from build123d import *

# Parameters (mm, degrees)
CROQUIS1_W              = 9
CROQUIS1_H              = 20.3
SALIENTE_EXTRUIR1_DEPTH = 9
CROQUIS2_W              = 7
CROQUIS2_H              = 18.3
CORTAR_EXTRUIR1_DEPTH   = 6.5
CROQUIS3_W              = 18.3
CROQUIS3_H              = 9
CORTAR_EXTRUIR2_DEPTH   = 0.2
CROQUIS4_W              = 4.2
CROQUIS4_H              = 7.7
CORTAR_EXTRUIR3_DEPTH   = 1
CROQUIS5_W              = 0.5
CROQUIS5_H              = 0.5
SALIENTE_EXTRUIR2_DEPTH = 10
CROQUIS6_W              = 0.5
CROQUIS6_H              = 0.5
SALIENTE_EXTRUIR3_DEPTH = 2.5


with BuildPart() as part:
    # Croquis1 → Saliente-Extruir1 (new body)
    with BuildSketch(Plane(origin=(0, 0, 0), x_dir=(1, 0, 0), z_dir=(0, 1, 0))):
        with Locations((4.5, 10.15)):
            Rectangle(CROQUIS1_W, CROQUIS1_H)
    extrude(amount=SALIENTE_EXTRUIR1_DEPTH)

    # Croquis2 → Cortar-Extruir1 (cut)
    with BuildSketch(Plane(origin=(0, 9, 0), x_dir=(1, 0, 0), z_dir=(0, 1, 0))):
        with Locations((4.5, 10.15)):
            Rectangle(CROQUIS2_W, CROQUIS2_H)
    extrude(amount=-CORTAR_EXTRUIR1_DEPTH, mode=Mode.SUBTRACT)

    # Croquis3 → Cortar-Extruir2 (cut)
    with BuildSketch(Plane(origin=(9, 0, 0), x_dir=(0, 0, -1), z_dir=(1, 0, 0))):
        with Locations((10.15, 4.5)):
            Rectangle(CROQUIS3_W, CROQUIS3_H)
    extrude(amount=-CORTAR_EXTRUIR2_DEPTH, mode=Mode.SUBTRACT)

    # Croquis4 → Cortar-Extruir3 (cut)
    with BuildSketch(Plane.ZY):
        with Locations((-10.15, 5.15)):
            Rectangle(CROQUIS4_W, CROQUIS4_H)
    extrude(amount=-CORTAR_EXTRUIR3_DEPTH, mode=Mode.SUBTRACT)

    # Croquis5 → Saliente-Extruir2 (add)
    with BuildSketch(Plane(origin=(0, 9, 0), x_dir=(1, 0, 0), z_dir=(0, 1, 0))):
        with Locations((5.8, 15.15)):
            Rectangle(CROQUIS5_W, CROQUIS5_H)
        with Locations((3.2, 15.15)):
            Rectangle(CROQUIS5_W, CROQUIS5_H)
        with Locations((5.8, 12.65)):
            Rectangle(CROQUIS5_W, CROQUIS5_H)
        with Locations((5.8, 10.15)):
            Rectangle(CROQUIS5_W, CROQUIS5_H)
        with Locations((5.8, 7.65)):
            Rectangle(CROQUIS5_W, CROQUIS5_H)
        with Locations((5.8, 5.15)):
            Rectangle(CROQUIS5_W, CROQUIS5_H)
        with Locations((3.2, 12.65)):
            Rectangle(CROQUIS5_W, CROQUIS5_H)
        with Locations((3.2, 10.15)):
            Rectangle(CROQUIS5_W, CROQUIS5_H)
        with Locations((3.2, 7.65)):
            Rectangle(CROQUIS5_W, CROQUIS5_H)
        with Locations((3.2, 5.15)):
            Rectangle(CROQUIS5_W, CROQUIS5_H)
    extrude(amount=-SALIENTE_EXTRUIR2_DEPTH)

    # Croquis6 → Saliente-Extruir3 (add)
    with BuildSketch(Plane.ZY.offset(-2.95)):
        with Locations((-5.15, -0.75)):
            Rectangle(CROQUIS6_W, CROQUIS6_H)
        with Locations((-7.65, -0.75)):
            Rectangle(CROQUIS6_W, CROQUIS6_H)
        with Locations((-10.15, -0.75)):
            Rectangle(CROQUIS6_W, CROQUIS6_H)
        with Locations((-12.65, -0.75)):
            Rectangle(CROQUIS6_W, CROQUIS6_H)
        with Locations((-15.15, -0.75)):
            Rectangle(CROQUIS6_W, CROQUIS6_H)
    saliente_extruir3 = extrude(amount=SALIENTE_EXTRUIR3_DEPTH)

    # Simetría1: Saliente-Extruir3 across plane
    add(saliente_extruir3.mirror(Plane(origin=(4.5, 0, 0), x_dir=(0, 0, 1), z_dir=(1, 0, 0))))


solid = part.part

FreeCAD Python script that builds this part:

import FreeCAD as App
import Part
import Sketcher

doc = App.newDocument("Part")
body = doc.addObject("PartDesign::Body", "Body")

# Sketch on XZ plane
sketch1 = body.newObject("Sketcher::SketchObject", "Sketch")
sketch1.AttachmentSupport = (doc.getObject("XZ_Plane"), [""])
sketch1.MapMode = "FlatFace"
sketch1.addGeometry([
    Part.LineSegment(App.Vector(0, -20.3, 0), App.Vector(0, 0, 0)),
    Part.LineSegment(App.Vector(0, 0, 0), App.Vector(9, 0, 0)),
    Part.LineSegment(App.Vector(9, 0, 0), App.Vector(9, -20.3, 0)),
    Part.LineSegment(App.Vector(9, -20.3, 0), App.Vector(0, -20.3, 0)),
], False)
sketch1.addConstraint([
    Sketcher.Constraint("Coincident", 0, 2, 1, 1),
    Sketcher.Constraint("Coincident", 1, 2, 2, 1),
    Sketcher.Constraint("Coincident", 2, 2, 3, 1),
    Sketcher.Constraint("Coincident", 3, 2, 0, 1),
    Sketcher.Constraint("Vertical", 0),
    Sketcher.Constraint("Horizontal", 1),
    Sketcher.Constraint("Vertical", 2),
    Sketcher.Constraint("Horizontal", 3),
    Sketcher.Constraint("Coincident", 0, 2, -1, 1),
    Sketcher.Constraint("DistanceX", 1, 1, 1, 2, 9.0),
    Sketcher.Constraint("DistanceY", 0, 1, 0, 2, 20.3),
])
pad1 = body.newObject("PartDesign::Pad", "Pad")
pad1.Profile = sketch1
pad1.Length = 9
pad1.Reversed = True

# Sketch on XZ plane
sketch2 = body.newObject("Sketcher::SketchObject", "Sketch001")
sketch2.AttachmentSupport = (doc.getObject("XZ_Plane"), [""])
sketch2.MapMode = "FlatFace"
sketch2.AttachmentOffset = App.Placement(App.Vector(0, 0, -9), App.Rotation())
sketch2.addGeometry([
    Part.LineSegment(App.Vector(1, -19.3, 0), App.Vector(1, -1, 0)),
    Part.LineSegment(App.Vector(1, -1, 0), App.Vector(8, -1, 0)),
    Part.LineSegment(App.Vector(8, -1, 0), App.Vector(8, -19.3, 0)),
    Part.LineSegment(App.Vector(8, -19.3, 0), App.Vector(1, -19.3, 0)),
], False)
sketch2.addConstraint([
    Sketcher.Constraint("Coincident", 0, 2, 1, 1),
    Sketcher.Constraint("Coincident", 1, 2, 2, 1),
    Sketcher.Constraint("Coincident", 2, 2, 3, 1),
    Sketcher.Constraint("Coincident", 3, 2, 0, 1),
    Sketcher.Constraint("Vertical", 0),
    Sketcher.Constraint("Horizontal", 1),
    Sketcher.Constraint("Vertical", 2),
    Sketcher.Constraint("Horizontal", 3),
    Sketcher.Constraint("DistanceX", 1, 1, 1, 2, 7.0),
    Sketcher.Constraint("DistanceY", 0, 1, 0, 2, 18.3),
    Sketcher.Constraint("DistanceX", -1, 1, 0, 2, 1.0),
    Sketcher.Constraint("DistanceY", 0, 2, -1, 1, 1.0),
])
pocket1 = body.newObject("PartDesign::Pocket", "Pocket")
pocket1.Profile = sketch2
pocket1.Length = 6.5
pocket1.Reversed = True

# Sketch on YZ plane
sketch3 = body.newObject("Sketcher::SketchObject", "Sketch002")
sketch3.AttachmentSupport = (doc.getObject("YZ_Plane"), [""])
sketch3.MapMode = "FlatFace"
sketch3.AttachmentOffset = App.Placement(App.Vector(0, 0, 9), App.Rotation())
sketch3.addGeometry([
    Part.LineSegment(App.Vector(9, -1, 0), App.Vector(0, -1, 0)),
    Part.LineSegment(App.Vector(0, -1, 0), App.Vector(0, -19.3, 0)),
    Part.LineSegment(App.Vector(0, -19.3, 0), App.Vector(9, -19.3, 0)),
    Part.LineSegment(App.Vector(9, -19.3, 0), App.Vector(9, -1, 0)),
], False)
sketch3.addConstraint([
    Sketcher.Constraint("Coincident", 0, 2, 1, 1),
    Sketcher.Constraint("Coincident", 1, 2, 2, 1),
    Sketcher.Constraint("Coincident", 2, 2, 3, 1),
    Sketcher.Constraint("Coincident", 3, 2, 0, 1),
    Sketcher.Constraint("Horizontal", 0),
    Sketcher.Constraint("Vertical", 1),
    Sketcher.Constraint("Horizontal", 2),
    Sketcher.Constraint("Vertical", 3),
    Sketcher.Constraint("PointOnObject", 0, 2, -2),
    Sketcher.Constraint("DistanceX", 0, 2, 0, 1, 9.0),
    Sketcher.Constraint("DistanceY", 1, 2, 1, 1, 18.3),
    Sketcher.Constraint("DistanceY", 0, 2, -1, 1, 1.0),
])
pocket2 = body.newObject("PartDesign::Pocket", "Pocket001")
pocket2.Profile = sketch3
pocket2.Length = 0.2

# Sketch on YZ plane
sketch4 = body.newObject("Sketcher::SketchObject", "Sketch003")
sketch4.AttachmentSupport = (doc.getObject("YZ_Plane"), [""])
sketch4.MapMode = "FlatFace"
sketch4.addGeometry([
    Part.LineSegment(App.Vector(9, -12.25, 0), App.Vector(1.3, -12.25, 0)),
    Part.LineSegment(App.Vector(1.3, -12.25, 0), App.Vector(1.3, -8.05, 0)),
    Part.LineSegment(App.Vector(1.3, -8.05, 0), App.Vector(9, -8.05, 0)),
    Part.LineSegment(App.Vector(9, -8.05, 0), App.Vector(9, -12.25, 0)),
], False)
sketch4.addConstraint([
    Sketcher.Constraint("Coincident", 0, 2, 1, 1),
    Sketcher.Constraint("Coincident", 1, 2, 2, 1),
    Sketcher.Constraint("Coincident", 2, 2, 3, 1),
    Sketcher.Constraint("Coincident", 3, 2, 0, 1),
    Sketcher.Constraint("Horizontal", 0),
    Sketcher.Constraint("Vertical", 1),
    Sketcher.Constraint("Horizontal", 2),
    Sketcher.Constraint("Vertical", 3),
    Sketcher.Constraint("DistanceX", 0, 2, 0, 1, 7.7),
    Sketcher.Constraint("DistanceY", 1, 1, 1, 2, 4.2),
    Sketcher.Constraint("DistanceX", -1, 1, 2, 2, 9.0),
    Sketcher.Constraint("DistanceY", 0, 2, -1, 1, 12.25),
])
pocket3 = body.newObject("PartDesign::Pocket", "Pocket002")
pocket3.Profile = sketch4
pocket3.Length = 1
pocket3.Reversed = True

# Sketch on XZ plane
sketch5 = body.newObject("Sketcher::SketchObject", "Sketch004")
sketch5.AttachmentSupport = (doc.getObject("XZ_Plane"), [""])
sketch5.MapMode = "FlatFace"
sketch5.AttachmentOffset = App.Placement(App.Vector(0, 0, -9), App.Rotation())
sketch5.addGeometry([
    Part.LineSegment(App.Vector(5.55, -15.4, 0), App.Vector(5.55, -14.9, 0)),  # 0
    Part.LineSegment(App.Vector(5.55, -14.9, 0), App.Vector(6.05, -14.9, 0)),  # 1
    Part.LineSegment(App.Vector(6.05, -14.9, 0), App.Vector(6.05, -15.4, 0)),  # 2
    Part.LineSegment(App.Vector(6.05, -15.4, 0), App.Vector(5.55, -15.4, 0)),  # 3
    Part.LineSegment(App.Vector(2.95, -15.4, 0), App.Vector(2.95, -14.9, 0)),  # 4
    Part.LineSegment(App.Vector(2.95, -14.9, 0), App.Vector(3.45, -14.9, 0)),  # 5
    Part.LineSegment(App.Vector(3.45, -14.9, 0), App.Vector(3.45, -15.4, 0)),  # 6
    Part.LineSegment(App.Vector(3.45, -15.4, 0), App.Vector(2.95, -15.4, 0)),  # 7
    Part.LineSegment(App.Vector(5.55, -12.9, 0), App.Vector(5.55, -12.4, 0)),  # 8
    Part.LineSegment(App.Vector(5.55, -12.4, 0), App.Vector(6.05, -12.4, 0)),  # 9
    Part.LineSegment(App.Vector(6.05, -12.4, 0), App.Vector(6.05, -12.9, 0)),  # 10
    Part.LineSegment(App.Vector(6.05, -12.9, 0), App.Vector(5.55, -12.9, 0)),  # 11
    Part.LineSegment(App.Vector(5.55, -10.4, 0), App.Vector(5.55, -9.9, 0)),  # 12
    Part.LineSegment(App.Vector(5.55, -9.9, 0), App.Vector(6.05, -9.9, 0)),  # 13
    Part.LineSegment(App.Vector(6.05, -9.9, 0), App.Vector(6.05, -10.4, 0)),  # 14
    Part.LineSegment(App.Vector(6.05, -10.4, 0), App.Vector(5.55, -10.4, 0)),  # 15
    Part.LineSegment(App.Vector(5.55, -7.9, 0), App.Vector(5.55, -7.4, 0)),  # 16
    Part.LineSegment(App.Vector(5.55, -7.4, 0), App.Vector(6.05, -7.4, 0)),  # 17
    Part.LineSegment(App.Vector(6.05, -7.4, 0), App.Vector(6.05, -7.9, 0)),  # 18
    Part.LineSegment(App.Vector(6.05, -7.9, 0), App.Vector(5.55, -7.9, 0)),  # 19
    Part.LineSegment(App.Vector(5.55, -5.4, 0), App.Vector(5.55, -4.9, 0)),  # 20
    Part.LineSegment(App.Vector(5.55, -4.9, 0), App.Vector(6.05, -4.9, 0)),  # 21
    Part.LineSegment(App.Vector(6.05, -4.9, 0), App.Vector(6.05, -5.4, 0)),  # 22
    Part.LineSegment(App.Vector(6.05, -5.4, 0), App.Vector(5.55, -5.4, 0)),  # 23
    Part.LineSegment(App.Vector(2.95, -12.9, 0), App.Vector(2.95, -12.4, 0)),  # 24
    Part.LineSegment(App.Vector(2.95, -12.4, 0), App.Vector(3.45, -12.4, 0)),  # 25
    Part.LineSegment(App.Vector(3.45, -12.4, 0), App.Vector(3.45, -12.9, 0)),  # 26
    Part.LineSegment(App.Vector(3.45, -12.9, 0), App.Vector(2.95, -12.9, 0)),  # 27
    Part.LineSegment(App.Vector(2.95, -10.4, 0), App.Vector(2.95, -9.9, 0)),  # 28
    Part.LineSegment(App.Vector(2.95, -9.9, 0), App.Vector(3.45, -9.9, 0)),  # 29
    Part.LineSegment(App.Vector(3.45, -9.9, 0), App.Vector(3.45, -10.4, 0)),  # 30
    Part.LineSegment(App.Vector(3.45, -10.4, 0), App.Vector(2.95, -10.4, 0)),  # 31
    Part.LineSegment(App.Vector(2.95, -7.9, 0), App.Vector(2.95, -7.4, 0)),  # 32
    Part.LineSegment(App.Vector(2.95, -7.4, 0), App.Vector(3.45, -7.4, 0)),  # 33
    Part.LineSegment(App.Vector(3.45, -7.4, 0), App.Vector(3.45, -7.9, 0)),  # 34
    Part.LineSegment(App.Vector(3.45, -7.9, 0), App.Vector(2.95, -7.9, 0)),  # 35
    Part.LineSegment(App.Vector(2.95, -5.4, 0), App.Vector(2.95, -4.9, 0)),  # 36
    Part.LineSegment(App.Vector(2.95, -4.9, 0), App.Vector(3.45, -4.9, 0)),  # 37
    Part.LineSegment(App.Vector(3.45, -4.9, 0), App.Vector(3.45, -5.4, 0)),  # 38
    Part.LineSegment(App.Vector(3.45, -5.4, 0), App.Vector(2.95, -5.4, 0)),  # 39
], False)
sketch5.addConstraint([
    Sketcher.Constraint("Coincident", 0, 2, 1, 1),
    Sketcher.Constraint("Coincident", 1, 2, 2, 1),
    Sketcher.Constraint("Coincident", 2, 2, 3, 1),
    Sketcher.Constraint("Coincident", 3, 2, 0, 1),
    Sketcher.Constraint("Coincident", 4, 2, 5, 1),
    Sketcher.Constraint("Coincident", 5, 2, 6, 1),
    Sketcher.Constraint("Coincident", 6, 2, 7, 1),
    Sketcher.Constraint("Coincident", 7, 2, 4, 1),
    Sketcher.Constraint("Coincident", 8, 2, 9, 1),
    Sketcher.Constraint("Coincident", 9, 2, 10, 1),
    Sketcher.Constraint("Coincident", 10, 2, 11, 1),
    Sketcher.Constraint("Coincident", 11, 2, 8, 1),
    Sketcher.Constraint("Coincident", 12, 2, 13, 1),
    Sketcher.Constraint("Coincident", 13, 2, 14, 1),
    Sketcher.Constraint("Coincident", 14, 2, 15, 1),
    Sketcher.Constraint("Coincident", 15, 2, 12, 1),
    Sketcher.Constraint("Coincident", 16, 2, 17, 1),
    Sketcher.Constraint("Coincident", 17, 2, 18, 1),
    Sketcher.Constraint("Coincident", 18, 2, 19, 1),
    Sketcher.Constraint("Coincident", 19, 2, 16, 1),
    Sketcher.Constraint("Coincident", 20, 2, 21, 1),
    Sketcher.Constraint("Coincident", 21, 2, 22, 1),
    Sketcher.Constraint("Coincident", 22, 2, 23, 1),
    Sketcher.Constraint("Coincident", 23, 2, 20, 1),
    Sketcher.Constraint("Coincident", 24, 2, 25, 1),
    Sketcher.Constraint("Coincident", 25, 2, 26, 1),
    Sketcher.Constraint("Coincident", 26, 2, 27, 1),
    Sketcher.Constraint("Coincident", 27, 2, 24, 1),
    Sketcher.Constraint("Coincident", 28, 2, 29, 1),
    Sketcher.Constraint("Coincident", 29, 2, 30, 1),
    Sketcher.Constraint("Coincident", 30, 2, 31, 1),
    Sketcher.Constraint("Coincident", 31, 2, 28, 1),
    Sketcher.Constraint("Coincident", 32, 2, 33, 1),
    Sketcher.Constraint("Coincident", 33, 2, 34, 1),
    Sketcher.Constraint("Coincident", 34, 2, 35, 1),
    Sketcher.Constraint("Coincident", 35, 2, 32, 1),
    Sketcher.Constraint("Coincident", 36, 2, 37, 1),
    Sketcher.Constraint("Coincident", 37, 2, 38, 1),
    Sketcher.Constraint("Coincident", 38, 2, 39, 1),
    Sketcher.Constraint("Coincident", 39, 2, 36, 1),
    Sketcher.Constraint("Vertical", 0),
    Sketcher.Constraint("Horizontal", 1),
    Sketcher.Constraint("Vertical", 2),
    Sketcher.Constraint("Horizontal", 3),
    Sketcher.Constraint("Vertical", 4),
    Sketcher.Constraint("Horizontal", 5),
    Sketcher.Constraint("Vertical", 6),
    Sketcher.Constraint("Horizontal", 7),
    Sketcher.Constraint("Vertical", 8),
    Sketcher.Constraint("Horizontal", 9),
    Sketcher.Constraint("Vertical", 10),
    Sketcher.Constraint("Horizontal", 11),
    Sketcher.Constraint("Vertical", 12),
    Sketcher.Constraint("Horizontal", 13),
    Sketcher.Constraint("Vertical", 14),
    Sketcher.Constraint("Horizontal", 15),
    Sketcher.Constraint("Vertical", 16),
    Sketcher.Constraint("Horizontal", 17),
    Sketcher.Constraint("Vertical", 18),
    Sketcher.Constraint("Horizontal", 19),
    Sketcher.Constraint("Vertical", 20),
    Sketcher.Constraint("Horizontal", 21),
    Sketcher.Constraint("Vertical", 22),
    Sketcher.Constraint("Horizontal", 23),
    Sketcher.Constraint("Vertical", 24),
    Sketcher.Constraint("Horizontal", 25),
    Sketcher.Constraint("Vertical", 26),
    Sketcher.Constraint("Horizontal", 27),
    Sketcher.Constraint("Vertical", 28),
    Sketcher.Constraint("Horizontal", 29),
    Sketcher.Constraint("Vertical", 30),
    Sketcher.Constraint("Horizontal", 31),
    Sketcher.Constraint("Vertical", 32),
    Sketcher.Constraint("Horizontal", 33),
    Sketcher.Constraint("Vertical", 34),
    Sketcher.Constraint("Horizontal", 35),
    Sketcher.Constraint("Vertical", 36),
    Sketcher.Constraint("Horizontal", 37),
    Sketcher.Constraint("Vertical", 38),
    Sketcher.Constraint("Horizontal", 39),
    Sketcher.Constraint("Horizontal", 1, 2, 4, 2),
    Sketcher.Constraint("Horizontal", 3, 2, 6, 2),
    Sketcher.Constraint("Horizontal", 9, 2, 24, 2),
    Sketcher.Constraint("Horizontal", 11, 2, 26, 2),
    Sketcher.Constraint("Horizontal", 13, 2, 28, 2),
    Sketcher.Constraint("Horizontal", 15, 2, 30, 2),
    Sketcher.Constraint("Horizontal", 17, 2, 32, 2),
    Sketcher.Constraint("Horizontal", 19, 2, 34, 2),
    Sketcher.Constraint("Horizontal", 21, 2, 36, 2),
    Sketcher.Constraint("Horizontal", 23, 2, 38, 2),
    Sketcher.Constraint("Vertical", 3, 2, 8, 2),
    Sketcher.Constraint("Vertical", 2, 2, 9, 2),
    Sketcher.Constraint("Vertical", 11, 2, 12, 2),
    Sketcher.Constraint("Vertical", 10, 2, 13, 2),
    Sketcher.Constraint("Vertical", 15, 2, 16, 2),
    Sketcher.Constraint("Vertical", 14, 2, 17, 2),
    Sketcher.Constraint("Vertical", 19, 2, 20, 2),
    Sketcher.Constraint("Vertical", 18, 2, 21, 2),
    Sketcher.Constraint("Vertical", 7, 2, 24, 2),
    Sketcher.Constraint("Vertical", 6, 2, 25, 2),
    Sketcher.Constraint("Vertical", 27, 2, 28, 2),
    Sketcher.Constraint("Vertical", 26, 2, 29, 2),
    Sketcher.Constraint("Vertical", 31, 2, 32, 2),
    Sketcher.Constraint("Vertical", 30, 2, 33, 2),
    Sketcher.Constraint("Vertical", 35, 2, 36, 2),
    Sketcher.Constraint("Vertical", 34, 2, 37, 2),
    Sketcher.Constraint("Equal", 3, 5),
    Sketcher.Constraint("Equal", 39, 0),
    Sketcher.Constraint("Equal", 6, 8),
    Sketcher.Constraint("Equal", 10, 12),
    Sketcher.Constraint("Equal", 14, 16),
    Sketcher.Constraint("Equal", 18, 20),
    Sketcher.Constraint("DistanceX", 1, 1, 1, 2, 0.5),
    Sketcher.Constraint("DistanceY", 3, 2, 8, 2, 3.0),
    Sketcher.Constraint("DistanceY", 11, 2, 12, 2, 3.0),
    Sketcher.Constraint("DistanceY", 15, 2, 16, 2, 3.0),
    Sketcher.Constraint("DistanceY", 19, 2, 20, 2, 3.0),
    Sketcher.Constraint("DistanceY", 0, 2, -1, 1, 14.9),
    Sketcher.Constraint("DistanceX", 4, 2, 0, 2, 2.6),
    Sketcher.Constraint("DistanceX", -1, 1, 0, 2, 5.55),
])
pad2 = body.newObject("PartDesign::Pad", "Pad001")
pad2.Profile = sketch5
pad2.Length = 10

# Sketch on YZ plane
sketch6 = body.newObject("Sketcher::SketchObject", "Sketch005")
sketch6.AttachmentSupport = (doc.getObject("YZ_Plane"), [""])
sketch6.MapMode = "FlatFace"
sketch6.AttachmentOffset = App.Placement(App.Vector(0, 0, 2.95), App.Rotation())
sketch6.addGeometry([
    Part.LineSegment(App.Vector(-0.5, -5.4, 0), App.Vector(-1, -5.4, 0)),  # 0
    Part.LineSegment(App.Vector(-1, -5.4, 0), App.Vector(-1, -4.9, 0)),  # 1
    Part.LineSegment(App.Vector(-1, -4.9, 0), App.Vector(-0.5, -4.9, 0)),  # 2
    Part.LineSegment(App.Vector(-0.5, -4.9, 0), App.Vector(-0.5, -5.4, 0)),  # 3
    Part.LineSegment(App.Vector(-0.5, -7.9, 0), App.Vector(-1, -7.9, 0)),  # 4
    Part.LineSegment(App.Vector(-1, -7.9, 0), App.Vector(-1, -7.4, 0)),  # 5
    Part.LineSegment(App.Vector(-1, -7.4, 0), App.Vector(-0.5, -7.4, 0)),  # 6
    Part.LineSegment(App.Vector(-0.5, -7.4, 0), App.Vector(-0.5, -7.9, 0)),  # 7
    Part.LineSegment(App.Vector(-0.5, -10.4, 0), App.Vector(-1, -10.4, 0)),  # 8
    Part.LineSegment(App.Vector(-1, -10.4, 0), App.Vector(-1, -9.9, 0)),  # 9
    Part.LineSegment(App.Vector(-1, -9.9, 0), App.Vector(-0.5, -9.9, 0)),  # 10
    Part.LineSegment(App.Vector(-0.5, -9.9, 0), App.Vector(-0.5, -10.4, 0)),  # 11
    Part.LineSegment(App.Vector(-0.5, -12.9, 0), App.Vector(-1, -12.9, 0)),  # 12
    Part.LineSegment(App.Vector(-1, -12.9, 0), App.Vector(-1, -12.4, 0)),  # 13
    Part.LineSegment(App.Vector(-1, -12.4, 0), App.Vector(-0.5, -12.4, 0)),  # 14
    Part.LineSegment(App.Vector(-0.5, -12.4, 0), App.Vector(-0.5, -12.9, 0)),  # 15
    Part.LineSegment(App.Vector(-0.5, -15.4, 0), App.Vector(-1, -15.4, 0)),  # 16
    Part.LineSegment(App.Vector(-1, -15.4, 0), App.Vector(-1, -14.9, 0)),  # 17
    Part.LineSegment(App.Vector(-1, -14.9, 0), App.Vector(-0.5, -14.9, 0)),  # 18
    Part.LineSegment(App.Vector(-0.5, -14.9, 0), App.Vector(-0.5, -15.4, 0)),  # 19
], False)
sketch6.addConstraint([
    Sketcher.Constraint("Coincident", 0, 2, 1, 1),
    Sketcher.Constraint("Coincident", 1, 2, 2, 1),
    Sketcher.Constraint("Coincident", 2, 2, 3, 1),
    Sketcher.Constraint("Coincident", 3, 2, 0, 1),
    Sketcher.Constraint("Coincident", 4, 2, 5, 1),
    Sketcher.Constraint("Coincident", 5, 2, 6, 1),
    Sketcher.Constraint("Coincident", 6, 2, 7, 1),
    Sketcher.Constraint("Coincident", 7, 2, 4, 1),
    Sketcher.Constraint("Coincident", 8, 2, 9, 1),
    Sketcher.Constraint("Coincident", 9, 2, 10, 1),
    Sketcher.Constraint("Coincident", 10, 2, 11, 1),
    Sketcher.Constraint("Coincident", 11, 2, 8, 1),
    Sketcher.Constraint("Coincident", 12, 2, 13, 1),
    Sketcher.Constraint("Coincident", 13, 2, 14, 1),
    Sketcher.Constraint("Coincident", 14, 2, 15, 1),
    Sketcher.Constraint("Coincident", 15, 2, 12, 1),
    Sketcher.Constraint("Coincident", 16, 2, 17, 1),
    Sketcher.Constraint("Coincident", 17, 2, 18, 1),
    Sketcher.Constraint("Coincident", 18, 2, 19, 1),
    Sketcher.Constraint("Coincident", 19, 2, 16, 1),
    Sketcher.Constraint("Horizontal", 0),
    Sketcher.Constraint("Vertical", 1),
    Sketcher.Constraint("Horizontal", 2),
    Sketcher.Constraint("Vertical", 3),
    Sketcher.Constraint("Horizontal", 4),
    Sketcher.Constraint("Vertical", 5),
    Sketcher.Constraint("Horizontal", 6),
    Sketcher.Constraint("Vertical", 7),
    Sketcher.Constraint("Horizontal", 8),
    Sketcher.Constraint("Vertical", 9),
    Sketcher.Constraint("Horizontal", 10),
    Sketcher.Constraint("Vertical", 11),
    Sketcher.Constraint("Horizontal", 12),
    Sketcher.Constraint("Vertical", 13),
    Sketcher.Constraint("Horizontal", 14),
    Sketcher.Constraint("Vertical", 15),
    Sketcher.Constraint("Horizontal", 16),
    Sketcher.Constraint("Vertical", 17),
    Sketcher.Constraint("Horizontal", 18),
    Sketcher.Constraint("Vertical", 19),
    Sketcher.Constraint("Vertical", 1, 2, 4, 2),
    Sketcher.Constraint("Vertical", 3, 2, 6, 2),
    Sketcher.Constraint("Vertical", 5, 2, 8, 2),
    Sketcher.Constraint("Vertical", 7, 2, 10, 2),
    Sketcher.Constraint("Vertical", 9, 2, 12, 2),
    Sketcher.Constraint("Vertical", 11, 2, 14, 2),
    Sketcher.Constraint("Vertical", 13, 2, 16, 2),
    Sketcher.Constraint("Vertical", 15, 2, 18, 2),
    Sketcher.Constraint("Equal", 18, 1),
    Sketcher.Constraint("Equal", 3, 5),
    Sketcher.Constraint("Equal", 7, 9),
    Sketcher.Constraint("Equal", 11, 13),
    Sketcher.Constraint("Equal", 15, 17),
    Sketcher.Constraint("DistanceX", 0, 2, 0, 1, 0.5),
    Sketcher.Constraint("DistanceX", 0, 2, -1, 1, 1.0),
    Sketcher.Constraint("DistanceY", 4, 2, 1, 2, 3.0),
    Sketcher.Constraint("DistanceY", 8, 2, 5, 2, 3.0),
    Sketcher.Constraint("DistanceY", 12, 2, 9, 2, 3.0),
    Sketcher.Constraint("DistanceY", 16, 2, 13, 2, 3.0),
    Sketcher.Constraint("DistanceY", 0, 2, -1, 1, 5.4),
])
pad3 = body.newObject("PartDesign::Pad", "Pad002")
pad3.Profile = sketch6
pad3.Length = 2.5
pad3.Reversed = True
doc.recompute()

datumplane = body.newObject("PartDesign::Plane", "DatumPlane")
datumplane.AttachmentSupport = (doc.getObject("YZ_Plane"), [""])
datumplane.MapMode = "FlatFace"
datumplane.AttachmentOffset = App.Placement(App.Vector(0, 0, 4.5), App.Rotation())
mirrored = body.newObject("PartDesign::Mirrored", "Mirrored")
mirrored.Originals = [pad3]
mirrored.MirrorPlane = (datumplane, [""])
body.Tip = mirrored

doc.recompute()
